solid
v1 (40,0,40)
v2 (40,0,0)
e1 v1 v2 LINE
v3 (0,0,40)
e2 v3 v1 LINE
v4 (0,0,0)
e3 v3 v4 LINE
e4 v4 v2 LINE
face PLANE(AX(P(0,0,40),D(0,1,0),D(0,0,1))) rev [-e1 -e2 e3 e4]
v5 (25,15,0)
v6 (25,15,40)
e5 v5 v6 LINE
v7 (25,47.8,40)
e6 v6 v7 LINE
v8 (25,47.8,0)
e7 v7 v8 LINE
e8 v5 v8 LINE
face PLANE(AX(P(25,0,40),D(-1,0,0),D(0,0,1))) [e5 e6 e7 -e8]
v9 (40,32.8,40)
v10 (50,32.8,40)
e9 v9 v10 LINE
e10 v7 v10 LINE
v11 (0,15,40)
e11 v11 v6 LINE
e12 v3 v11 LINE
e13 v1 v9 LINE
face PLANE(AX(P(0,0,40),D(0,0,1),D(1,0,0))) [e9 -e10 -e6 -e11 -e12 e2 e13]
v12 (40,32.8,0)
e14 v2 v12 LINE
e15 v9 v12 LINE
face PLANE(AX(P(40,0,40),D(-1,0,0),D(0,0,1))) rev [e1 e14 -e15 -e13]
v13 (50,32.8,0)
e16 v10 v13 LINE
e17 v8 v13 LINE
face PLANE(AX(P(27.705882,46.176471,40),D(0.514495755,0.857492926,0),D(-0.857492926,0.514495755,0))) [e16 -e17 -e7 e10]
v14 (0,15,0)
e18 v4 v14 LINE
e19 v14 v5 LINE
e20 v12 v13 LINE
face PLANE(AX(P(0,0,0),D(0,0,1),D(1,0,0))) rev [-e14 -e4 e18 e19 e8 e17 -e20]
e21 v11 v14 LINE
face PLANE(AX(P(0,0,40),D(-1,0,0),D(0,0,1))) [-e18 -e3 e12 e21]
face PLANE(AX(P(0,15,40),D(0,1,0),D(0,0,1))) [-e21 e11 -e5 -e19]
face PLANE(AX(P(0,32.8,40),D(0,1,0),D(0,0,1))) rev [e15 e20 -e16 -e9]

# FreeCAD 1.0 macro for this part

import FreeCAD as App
import Part
import Sketcher

V = App.Vector


def add_polygon(sketch, points):
    """Adds a closed chain of lines whose ends are joined by coincident constraints."""
    first, n = sketch.GeometryCount, len(points)
    for a, b in zip(points, points[1:] + points[:1]):
        sketch.addGeometry(Part.LineSegment(App.Vector(*a, 0), App.Vector(*b, 0)), False)
    for i in range(n):
        sketch.addConstraint(Sketcher.Constraint("Coincident", first + i, 2, first + (i + 1) % n, 1))

doc = App.newDocument("Part")
body = doc.addObject("PartDesign::Body", "Body")

# Sketch on XY plane
sketch1 = doc.addObject("Sketcher::SketchObject", "Sketch")
body.addObject(sketch1)
sketch1.AttachmentSupport = (doc.XY_Plane, [""])
sketch1.MapMode = "FlatFace"
add_polygon(sketch1, [(50, 32.8), (25, 47.8), (25, 15), (0, 15), (0, 0), (40, 0), (40, 32.8)])  # lines 0-6
sketch1.addConstraint(Sketcher.Constraint("Vertical", 1))
sketch1.addConstraint(Sketcher.Constraint("Horizontal", 2))
sketch1.addConstraint(Sketcher.Constraint("Vertical", 3))
sketch1.addConstraint(Sketcher.Constraint("Horizontal", 4))
sketch1.addConstraint(Sketcher.Constraint("Vertical", 5))
sketch1.addConstraint(Sketcher.Constraint("Horizontal", 6))
sketch1.addConstraint(Sketcher.Constraint("Coincident", 3, 2, -1, 1))
sketch1.addConstraint(Sketcher.Constraint("Equal", 1, 5))
sketch1.addConstraint(Sketcher.Constraint("DistanceX", 2, 2, 2, 1, 25.0))
sketch1.addConstraint(Sketcher.Constraint("DistanceX", 4, 1, 4, 2, 40.0))
sketch1.addConstraint(Sketcher.Constraint("DistanceX", 6, 1, 6, 2, 10.0))
sketch1.addConstraint(Sketcher.Constraint("DistanceY", 3, 2, 3, 1, 15.0))
sketch1.addConstraint(Sketcher.Constraint("DistanceY", 1, 2, 1, 1, 32.8))
pad1 = doc.addObject("PartDesign::Pad", "Pad")
body.addObject(pad1)
pad1.Profile = sketch1
pad1.Length = 40

doc.recompute()
